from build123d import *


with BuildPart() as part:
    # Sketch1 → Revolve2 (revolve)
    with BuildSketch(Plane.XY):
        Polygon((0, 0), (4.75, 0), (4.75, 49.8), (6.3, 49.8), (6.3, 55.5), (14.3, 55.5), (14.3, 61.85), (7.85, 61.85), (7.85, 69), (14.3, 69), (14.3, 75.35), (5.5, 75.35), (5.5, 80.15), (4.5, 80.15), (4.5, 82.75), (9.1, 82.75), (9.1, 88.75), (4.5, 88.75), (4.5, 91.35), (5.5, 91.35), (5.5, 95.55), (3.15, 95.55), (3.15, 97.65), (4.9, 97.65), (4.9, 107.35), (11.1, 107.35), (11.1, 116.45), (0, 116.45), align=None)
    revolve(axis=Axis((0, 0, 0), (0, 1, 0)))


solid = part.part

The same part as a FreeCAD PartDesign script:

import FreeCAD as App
import Part
import Sketcher


def add_polygon(sketch, points):
    """Adds a closed chain of lines whose ends are joined by coincident constraints."""
    first, n = sketch.GeometryCount, len(points)
    for a, b in zip(points, points[1:] + points[:1]):
        sketch.addGeometry(Part.LineSegment(App.Vector(*a, 0), App.Vector(*b, 0)), False)
    for i in range(n):
        sketch.addConstraint(Sketcher.Constraint("Coincident", first + i, 2, first + (i + 1) % n, 1))

doc = App.newDocument("Part")
params = doc.addObject("Spreadsheet::Sheet", "Params")
for row, (alias, value) in enumerate([
    ("sketch1_width", "8 mm"),
    ("sketch1_width2", "1 mm"),
    ("sketch1_height", "6 mm"),
    ("sketch1_width3", "8.8 mm"),
    ("sketch1_width4", "4.6 mm"),
    ("revolution_angle", "360 deg"),
], start=1):
    params.set(f"A{row}", alias)
    params.set(f"B{row}", "=" + value)
    params.setAlias(f"B{row}", alias)

body = doc.addObject("PartDesign::Body", "Body")

sketch1 = body.newObject("Sketcher::SketchObject", "Sketch")
sketch1.AttachmentSupport = (doc.getObject("XY_Plane"), [""])
sketch1.MapMode = "FlatFace"
add_polygon(sketch1, [(0, 0), (4.8, 0), (4.8, 49.8), (6.3, 49.8), (6.3, 55.5), (14.3, 55.5), (14.3, 61.9), (7.8, 61.9), (7.8, 69), (14.3, 69), (14.3, 75.3), (5.5, 75.3), (5.5, 80.2), (4.5, 80.2), (4.5, 82.8), (9.1, 82.8), (9.1, 88.8), (4.5, 88.8), (4.5, 91.3), (5.5, 91.3), (5.5, 95.5), (3.1, 95.5), (3.1, 97.7), (4.9, 97.7), (4.9, 107.3), (11.1, 107.3), (11.1, 116.5), (0, 116.5)])
sketch1.addConstraint([
    Sketcher.Constraint("Horizontal", 0),
    Sketcher.Constraint("Vertical", 1),
    Sketcher.Constraint("Horizontal", 2),
    Sketcher.Constraint("Vertical", 3),
    Sketcher.Constraint("Horizontal", 4),
    Sketcher.Constraint("Vertical", 5),
    Sketcher.Constraint("Horizontal", 6),
    Sketcher.Constraint("Vertical", 7),
    Sketcher.Constraint("Horizontal", 8),
    Sketcher.Constraint("Vertical", 9),
    Sketcher.Constraint("Horizontal", 10),
    Sketcher.Constraint("Vertical", 11),
    Sketcher.Constraint("Horizontal", 12),
    Sketcher.Constraint("Vertical", 13),
    Sketcher.Constraint("Horizontal", 14),
    Sketcher.Constraint("Vertical", 15),
    Sketcher.Constraint("Horizontal", 16),
    Sketcher.Constraint("Vertical", 17),
    Sketcher.Constraint("Horizontal", 18),
    Sketcher.Constraint("Vertical", 19),
    Sketcher.Constraint("Horizontal", 20),
    Sketcher.Constraint("Vertical", 21),
    Sketcher.Constraint("Horizontal", 22),
    Sketcher.Constraint("Vertical", 23),
    Sketcher.Constraint("Horizontal", 24),
    Sketcher.Constraint("Vertical", 25),
    Sketcher.Constraint("Horizontal", 26),
    Sketcher.Constraint("Vertical", 27),
    Sketcher.Constraint("Coincident", 27, 2, -1, 1),
    Sketcher.Constraint("Vertical", 5, 2, 8, 2),
    Sketcher.Constraint("Vertical", 13, 2, 16, 2),
    Sketcher.Constraint("Vertical", 11, 2, 18, 2),
    Sketcher.Constraint("Equal", 5, 9),
    Sketcher.Constraint("Equal", 13, 17),
    Sketcher.Constraint("DistanceX", 4, 1, 4, 2, 8.0),
    Sketcher.Constraint("DistanceX", 12, 2, 12, 1, 1.0),
    Sketcher.Constraint("DistanceY", 15, 1, 15, 2, 6.0),
    Sketcher.Constraint("DistanceX", 10, 2, 10, 1, 8.8),
    Sketcher.Constraint("DistanceX", 14, 1, 14, 2, 4.6),
    Sketcher.Constraint("DistanceX", 24, 1, 24, 2, 6.2),
    Sketcher.Constraint("DistanceX", 26, 2, 26, 1, 11.1),
    Sketcher.Constraint("DistanceY", 1, 1, 1, 2, 49.8),
    Sketcher.Constraint("DistanceY", 3, 1, 3, 2, 5.7),
    Sketcher.Constraint("DistanceY", 11, 1, 11, 2, 4.8),
    Sketcher.Constraint("DistanceY", 13, 1, 13, 2, 2.6),
    Sketcher.Constraint("DistanceY", 19, 1, 19, 2, 4.2),
    Sketcher.Constraint("DistanceY", 21, 1, 21, 2, 2.1),
    Sketcher.Constraint("DistanceY", 23, 1, 23, 2, 9.7),
    Sketcher.Constraint("DistanceY", 25, 1, 25, 2, 9.1),
    Sketcher.Constraint("DistanceY", -1, 1, 7, 2, 69.0),
    Sketcher.Constraint("DistanceX", 0, 1, 0, 2, 4.75),
    Sketcher.Constraint("DistanceX", 2, 1, 2, 2, 1.55),
    Sketcher.Constraint("DistanceX", 6, 2, 6, 1, 6.45),
    Sketcher.Constraint("DistanceX", 20, 2, 20, 1, 2.35),
    Sketcher.Constraint("DistanceY", 5, 1, 5, 2, 6.35),
])
sketch1.setExpression("Constraints[62]", "Params.sketch1_width")
sketch1.setExpression("Constraints[63]", "Params.sketch1_width2")
sketch1.setExpression("Constraints[64]", "Params.sketch1_height")
sketch1.setExpression("Constraints[65]", "Params.sketch1_width3")
sketch1.setExpression("Constraints[66]", "Params.sketch1_width4")
revolution = body.newObject("PartDesign::Revolution", "Revolution")
revolution.Profile = sketch1
revolution.ReferenceAxis = (sketch1, ["V_Axis"])
revolution.setExpression("Angle", "Params.revolution_angle")

doc.recompute()
